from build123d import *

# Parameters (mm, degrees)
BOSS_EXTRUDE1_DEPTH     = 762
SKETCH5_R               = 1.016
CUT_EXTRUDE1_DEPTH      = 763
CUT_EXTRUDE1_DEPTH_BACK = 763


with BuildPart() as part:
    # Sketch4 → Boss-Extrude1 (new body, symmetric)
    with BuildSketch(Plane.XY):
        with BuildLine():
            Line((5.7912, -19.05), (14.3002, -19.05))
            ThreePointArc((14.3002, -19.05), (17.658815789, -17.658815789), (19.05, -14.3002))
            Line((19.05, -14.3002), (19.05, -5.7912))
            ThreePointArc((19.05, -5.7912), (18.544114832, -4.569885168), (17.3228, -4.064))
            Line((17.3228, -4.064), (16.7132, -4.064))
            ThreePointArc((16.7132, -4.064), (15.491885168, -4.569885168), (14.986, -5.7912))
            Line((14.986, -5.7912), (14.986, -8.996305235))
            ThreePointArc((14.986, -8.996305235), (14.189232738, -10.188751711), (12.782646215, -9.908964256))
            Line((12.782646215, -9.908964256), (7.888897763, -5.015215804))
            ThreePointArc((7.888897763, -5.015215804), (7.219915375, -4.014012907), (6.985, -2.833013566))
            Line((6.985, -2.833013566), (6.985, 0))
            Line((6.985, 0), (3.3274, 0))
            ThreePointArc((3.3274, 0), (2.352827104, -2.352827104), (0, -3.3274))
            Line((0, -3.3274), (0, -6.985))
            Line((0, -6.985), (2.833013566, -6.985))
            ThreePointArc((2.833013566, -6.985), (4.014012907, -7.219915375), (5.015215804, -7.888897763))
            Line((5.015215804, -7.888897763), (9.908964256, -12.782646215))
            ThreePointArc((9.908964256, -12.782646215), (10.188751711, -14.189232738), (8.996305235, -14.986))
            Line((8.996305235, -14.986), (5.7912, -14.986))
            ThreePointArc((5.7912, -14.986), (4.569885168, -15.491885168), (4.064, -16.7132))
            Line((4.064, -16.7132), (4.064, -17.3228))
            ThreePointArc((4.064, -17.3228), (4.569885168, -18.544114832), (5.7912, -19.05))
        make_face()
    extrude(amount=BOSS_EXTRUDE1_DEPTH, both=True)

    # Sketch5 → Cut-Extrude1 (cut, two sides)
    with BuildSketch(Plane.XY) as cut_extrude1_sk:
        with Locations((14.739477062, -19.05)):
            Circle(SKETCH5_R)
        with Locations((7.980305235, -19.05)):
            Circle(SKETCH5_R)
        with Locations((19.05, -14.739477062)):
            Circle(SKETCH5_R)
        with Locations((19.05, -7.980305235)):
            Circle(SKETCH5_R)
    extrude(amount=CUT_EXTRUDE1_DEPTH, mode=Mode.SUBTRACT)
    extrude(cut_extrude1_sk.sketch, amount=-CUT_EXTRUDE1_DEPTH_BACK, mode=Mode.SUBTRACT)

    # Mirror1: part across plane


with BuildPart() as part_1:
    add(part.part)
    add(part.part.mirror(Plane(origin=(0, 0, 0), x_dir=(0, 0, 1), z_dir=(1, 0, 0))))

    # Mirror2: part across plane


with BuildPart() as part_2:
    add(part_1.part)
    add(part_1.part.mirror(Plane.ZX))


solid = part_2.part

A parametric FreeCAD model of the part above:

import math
import FreeCAD as App
import Part
import Sketcher

V = App.Vector
Q = App.Units.Quantity

doc = App.newDocument("Part")
params = doc.addObject("Spreadsheet::Sheet", "Params")
for row, (alias, value) in enumerate([
    ("sketch1_radius", "0.187 in"),
    ("sketch1_radius2", "0.068 in"),
    ("sketch1_radius3", "0.131 in"),
    ("sketch1_width", "0.335 in"),
    ("sketch1_width2", "0.024 in"),
    ("pad1_length", "60 in"),
    ("sketch2_diameter", "0.08 in"),
], start=1):
    params.set(f"A{row}", alias)
    params.set(f"B{row}", "=" + value)
    params.setAlias(f"B{row}", alias)

body = doc.addObject("PartDesign::Body", "Body")

# Sketch on XY plane
sketch1 = doc.addObject("Sketcher::SketchObject", "Sketch")
body.addObject(sketch1)
sketch1.AttachmentSupport = (doc.XY_Plane, [""])
sketch1.MapMode = "FlatFace"
sketch1.addGeometry(Part.LineSegment(V(5.8, -19.1, 0), V(14.3, -19.1, 0)), False)
sketch1.addGeometry(Part.ArcOfCircle(Part.Circle(V(14.3, -14.3, 0), V(0, 0, 1), 4.7), math.radians(-90), math.radians(0)), False)
sketch1.addGeometry(Part.LineSegment(V(19.1, -14.3, 0), V(19.1, -5.8, 0)), False)
sketch1.addGeometry(Part.ArcOfCircle(Part.Circle(V(17.3, -5.8, 0), V(0, 0, 1), 1.7), math.radians(0), math.radians(90)), False)
sketch1.addGeometry(Part.LineSegment(V(17.3, -4.1, 0), V(16.7, -4.1, 0)), False)
sketch1.addGeometry(Part.ArcOfCircle(Part.Circle(V(16.7, -5.8, 0), V(0, 0, 1), 1.7), math.radians(90), math.radians(180)), False)
sketch1.addGeometry(Part.LineSegment(V(15, -5.8, 0), V(15, -9, 0)), False)
sketch1.addGeometry(Part.ArcOfCircle(Part.Circle(V(13.7, -9, 0), V(0, 0, 1), 1.3), math.radians(-135), math.radians(0)), False)
sketch1.addGeometry(Part.LineSegment(V(12.8, -9.9, 0), V(7.9, -5, 0)), False)
sketch1.addGeometry(Part.ArcOfCircle(Part.Circle(V(10.1, -2.8, 0), V(0, 0, 1), 3.1), math.radians(-180), math.radians(-135)), False)
sketch1.addGeometry(Part.LineSegment(V(7, -2.8, 0), V(7, 0, 0)), False)
sketch1.addGeometry(Part.LineSegment(V(7, 0, 0), V(3.3, 0, 0)), False)
sketch1.addGeometry(Part.ArcOfCircle(Part.Circle(V(0, 0, 0), V(0, 0, 1), 3.3), math.radians(-90), math.radians(0)), False)
sketch1.addGeometry(Part.LineSegment(V(0, -3.3, 0), V(0, -7, 0)), False)
sketch1.addGeometry(Part.LineSegment(V(0, -7, 0), V(2.8, -7, 0)), False)
sketch1.addGeometry(Part.ArcOfCircle(Part.Circle(V(2.8, -10.1, 0), V(0, 0, 1), 3.1), math.radians(45), math.radians(90)), False)
sketch1.addGeometry(Part.LineSegment(V(5, -7.9, 0), V(9.9, -12.8, 0)), False)
sketch1.addGeometry(Part.ArcOfCircle(Part.Circle(V(9, -13.7, 0), V(0, 0, 1), 1.3), math.radians(-90), math.radians(45)), False)
sketch1.addGeometry(Part.LineSegment(V(9, -15, 0), V(5.8, -15, 0)), False)
sketch1.addGeometry(Part.ArcOfCircle(Part.Circle(V(5.8, -16.7, 0), V(0, 0, 1), 1.7), math.radians(90), math.radians(180)), False)
sketch1.addGeometry(Part.LineSegment(V(4.1, -16.7, 0), V(4.1, -17.3, 0)), False)
sketch1.addGeometry(Part.ArcOfCircle(Part.Circle(V(5.8, -17.3, 0), V(0, 0, 1), 1.7), math.radians(-180), math.radians(-90)), False)
sketch1.addConstraint(Sketcher.Constraint("Tangent", 0, 2, 1, 1))
sketch1.addConstraint(Sketcher.Constraint("Tangent", 1, 2, 2, 1))
sketch1.addConstraint(Sketcher.Constraint("Tangent", 2, 2, 3, 1))
sketch1.addConstraint(Sketcher.Constraint("Tangent", 3, 2, 4, 1))
sketch1.addConstraint(Sketcher.Constraint("Tangent", 4, 2, 5, 1))
sketch1.addConstraint(Sketcher.Constraint("Tangent", 5, 2, 6, 1))
sketch1.addConstraint(Sketcher.Constraint("Tangent", 6, 2, 7, 2))
sketch1.addConstraint(Sketcher.Constraint("Tangent", 7, 1, 8, 1))
sketch1.addConstraint(Sketcher.Constraint("Tangent", 8, 2, 9, 2))
sketch1.addConstraint(Sketcher.Constraint("Tangent", 9, 1, 10, 1))
sketch1.addConstraint(Sketcher.Constraint("Coincident", 10, 2, 11, 1))
sketch1.addConstraint(Sketcher.Constraint("Coincident", 11, 2, 12, 2))
sketch1.addConstraint(Sketcher.Constraint("Coincident", 12, 1, 13, 1))
sketch1.addConstraint(Sketcher.Constraint("Coincident", 13, 2, 14, 1))
sketch1.addConstraint(Sketcher.Constraint("Tangent", 14, 2, 15, 2))
sketch1.addConstraint(Sketcher.Constraint("Tangent", 15, 1, 16, 1))
sketch1.addConstraint(Sketcher.Constraint("Tangent", 16, 2, 17, 2))
sketch1.addConstraint(Sketcher.Constraint("Tangent", 17, 1, 18, 1))
sketch1.addConstraint(Sketcher.Constraint("Tangent", 18, 2, 19, 1))
sketch1.addConstraint(Sketcher.Constraint("Tangent", 19, 2, 20, 1))
sketch1.addConstraint(Sketcher.Constraint("Tangent", 20, 2, 21, 1))
sketch1.addConstraint(Sketcher.Constraint("Tangent", 21, 2, 0, 1))
sketch1.addConstraint(Sketcher.Constraint("Horizontal", 0))
sketch1.addConstraint(Sketcher.Constraint("Vertical", 2))
sketch1.addConstraint(Sketcher.Constraint("Horizontal", 4))
sketch1.addConstraint(Sketcher.Constraint("Vertical", 6))
sketch1.addConstraint(Sketcher.Constraint("Vertical", 10))
sketch1.addConstraint(Sketcher.Constraint("Horizontal", 11))
sketch1.addConstraint(Sketcher.Constraint("Vertical", 13))
sketch1.addConstraint(Sketcher.Constraint("Horizontal", 14))
sketch1.addConstraint(Sketcher.Constraint("Horizontal", 18))
sketch1.addConstraint(Sketcher.Constraint("Vertical", 20))
sketch1.addConstraint(Sketcher.Constraint("Coincident", 12, 3, -1, 1))
sketch1.addConstraint(Sketcher.Constraint("Equal", 3, 5))
sketch1.addConstraint(Sketcher.Constraint("Equal", 9, 15))
sketch1.addConstraint(Sketcher.Constraint("Equal", 7, 17))
sketch1.addConstraint(Sketcher.Constraint("Equal", 5, 19))
sketch1.addConstraint(Sketcher.Constraint("Equal", 19, 21))
sketch1.addConstraint(Sketcher.Constraint("PointOnObject", 10, 2, -1))
sketch1.addConstraint(Sketcher.Constraint("PointOnObject", 12, 1, -2))
sketch1.addConstraint(Sketcher.Constraint("Parallel", 8, 16))
sketch1.addConstraint(Sketcher.Constraint("Equal", 0, 2))
sketch1.addConstraint(Sketcher.Constraint("Equal", 18, 6))
sketch1.addConstraint(Sketcher.Constraint("Equal", 14, 10))
sketch1.addConstraint(Sketcher.Constraint("Equal", 11, 13))
sketch1.addConstraint(Sketcher.Constraint("Equal", 4, 20))
sketch1.addConstraint(Sketcher.Constraint("Equal", 8, 16))
sketch1.addConstraint(Sketcher.Constraint("Radius", 1, Q("0.187 in")))
sketch1.addConstraint(Sketcher.Constraint("Radius", 3, Q("0.068 in")))
sketch1.addConstraint(Sketcher.Constraint("Radius", 12, Q("0.131 in")))
sketch1.addConstraint(Sketcher.Constraint("Radius", 9, Q("0.1215 in")))
sketch1.addConstraint(Sketcher.Constraint("DistanceX", 0, 1, 0, 2, Q("0.335 in")))
sketch1.addConstraint(Sketcher.Constraint("DistanceX", 4, 2, 4, 1, Q("0.024 in")))
sketch1.addConstraint(Sketcher.Constraint("DistanceX", 11, 2, 11, 1, Q("0.144 in")))
sketch1.addConstraint(Sketcher.Constraint("DistanceY", 0, 2, -1, 1, Q("0.75 in")))
sketch1.addConstraint(Sketcher.Constraint("DistanceX", 17, 3, 7, 3, Q("0.185 in")))
sketch1.addConstraint(Sketcher.Constraint("Radius", 7, Q("1.290695 mm")))
sketch1.setExpression("Constraints[47]", "Params.sketch1_radius")
sketch1.setExpression("Constraints[48]", "Params.sketch1_radius2")
sketch1.setExpression("Constraints[49]", "Params.sketch1_radius3")
sketch1.setExpression("Constraints[51]", "Params.sketch1_width")
sketch1.setExpression("Constraints[52]", "Params.sketch1_width2")
pad1 = doc.addObject("PartDesign::Pad", "Pad")
body.addObject(pad1)
pad1.Profile = sketch1
pad1.setExpression("Length", "Params.pad1_length")
pad1.Midplane = True

# Sketch on XY plane
sketch2 = doc.addObject("Sketcher::SketchObject", "Sketch001")
body.addObject(sketch2)
sketch2.AttachmentSupport = (doc.XY_Plane, [""])
sketch2.MapMode = "FlatFace"
sketch2.addGeometry(Part.Circle(V(14.7, -19.1, 0), V(0, 0, 1), 1), False)
sketch2.addGeometry(Part.Circle(V(8, -19.1, 0), V(0, 0, 1), 1), False)
sketch2.addGeometry(Part.Circle(V(19.1, -14.7, 0), V(0, 0, 1), 1), False)
sketch2.addGeometry(Part.Circle(V(19.1, -8, 0), V(0, 0, 1), 1), False)
sketch2.addConstraint(Sketcher.Constraint("Equal", 0, 1))
sketch2.addConstraint(Sketcher.Constraint("Equal", 1, 2))
sketch2.addConstraint(Sketcher.Constraint("Equal", 2, 3))
sketch2.addConstraint(Sketcher.Constraint("Horizontal", 0, 3, 1, 3))
sketch2.addConstraint(Sketcher.Constraint("Vertical", 2, 3, 3, 3))
sketch2.addConstraint(Sketcher.Constraint("Diameter", 0, Q("0.08 in")))
sketch2.addConstraint(Sketcher.Constraint("DistanceY", 0, 3, -1, 1, Q("0.75 in")))
sketch2.addConstraint(Sketcher.Constraint("DistanceX", -1, 1, 2, 3, Q("0.75 in")))
sketch2.addConstraint(Sketcher.Constraint("DistanceX", 1, 3, 0, 3, Q("6.759172 mm")))
sketch2.addConstraint(Sketcher.Constraint("DistanceY", 2, 3, 3, 3, Q("6.759172 mm")))
sketch2.addConstraint(Sketcher.Constraint("DistanceX", -1, 1, 0, 3, Q("14.739477 mm")))
sketch2.addConstraint(Sketcher.Constraint("DistanceY", 2, 3, -1, 1, Q("14.739477 mm")))
sketch2.setExpression("Constraints[5]", "Params.sketch2_diameter")
pocket1 = doc.addObject("PartDesign::Pocket", "Pocket")
body.addObject(pocket1)
pocket1.Profile = sketch2
pocket1.Type = "ThroughAll"
pocket1.Midplane = True
body2 = doc.addObject("PartDesign::Body", "Body001")
doc.recompute()

body2.BaseFeature = body
doc.recompute()

mirroring = doc.addObject("Part::Mirroring", "Mirroring")
mirroring.Source = body
mirroring.Base = V(0, 0, 0)
mirroring.Normal = V(1, 0, 0)
body3 = doc.addObject("PartDesign::Body", "Body002")
body3.BaseFeature = mirroring
boolean = doc.addObject("PartDesign::Boolean", "Boolean")
body2.addObject(boolean)
boolean.Type = "Fuse"
boolean.addObjects([body3])
doc.recompute()
body4 = doc.addObject("PartDesign::Body", "Body003")
doc.recompute()

body4.BaseFeature = body2
doc.recompute()

mirroring2 = doc.addObject("Part::Mirroring", "Mirroring001")
mirroring2.Source = body2
mirroring2.Base = V(0, 0, 0)
mirroring2.Normal = V(0, 1, 0)
body5 = doc.addObject("PartDesign::Body", "Body004")
body5.BaseFeature = mirroring2
boolean2 = doc.addObject("PartDesign::Boolean", "Boolean001")
body4.addObject(boolean2)
boolean2.Type = "Fuse"
boolean2.addObjects([body5])
doc.recompute()
mirroring.Visibility = False
mirroring2.Visibility = False

doc.recompute()
